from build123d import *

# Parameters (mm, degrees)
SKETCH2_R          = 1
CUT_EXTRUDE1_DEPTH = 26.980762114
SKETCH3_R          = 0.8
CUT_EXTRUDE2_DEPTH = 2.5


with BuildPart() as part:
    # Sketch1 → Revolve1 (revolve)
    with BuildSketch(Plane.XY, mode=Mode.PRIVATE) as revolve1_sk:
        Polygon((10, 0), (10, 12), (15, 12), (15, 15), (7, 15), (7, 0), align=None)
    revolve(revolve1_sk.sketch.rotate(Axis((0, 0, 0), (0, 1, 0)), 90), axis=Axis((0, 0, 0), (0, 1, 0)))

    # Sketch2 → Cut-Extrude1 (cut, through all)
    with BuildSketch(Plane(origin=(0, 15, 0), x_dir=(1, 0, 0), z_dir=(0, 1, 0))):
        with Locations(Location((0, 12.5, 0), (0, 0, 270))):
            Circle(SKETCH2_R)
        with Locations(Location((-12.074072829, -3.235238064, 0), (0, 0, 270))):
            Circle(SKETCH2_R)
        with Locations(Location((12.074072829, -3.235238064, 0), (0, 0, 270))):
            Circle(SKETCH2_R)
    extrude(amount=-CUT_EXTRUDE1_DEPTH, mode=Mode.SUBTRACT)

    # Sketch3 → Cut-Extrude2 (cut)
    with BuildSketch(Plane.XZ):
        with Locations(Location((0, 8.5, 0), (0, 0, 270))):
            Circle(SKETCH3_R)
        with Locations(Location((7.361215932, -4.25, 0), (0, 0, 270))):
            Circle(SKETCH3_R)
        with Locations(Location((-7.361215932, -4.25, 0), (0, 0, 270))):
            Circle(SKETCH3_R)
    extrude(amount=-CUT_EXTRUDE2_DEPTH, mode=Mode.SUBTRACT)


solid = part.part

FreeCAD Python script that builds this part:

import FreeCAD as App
import Part
import Sketcher


def add_polygon(sketch, points):
    """Adds a closed chain of lines whose ends are joined by coincident constraints."""
    first, n = sketch.GeometryCount, len(points)
    for a, b in zip(points, points[1:] + points[:1]):
        sketch.addGeometry(Part.LineSegment(App.Vector(*a, 0), App.Vector(*b, 0)), False)
    for i in range(n):
        sketch.addConstraint(Sketcher.Constraint("Coincident", first + i, 2, first + (i + 1) % n, 1))

doc = App.newDocument("Part")
body = doc.addObject("PartDesign::Body", "Body")

sketch1 = body.newObject("Sketcher::SketchObject", "Sketch")
sketch1.AttachmentSupport = (doc.getObject("XY_Plane"), [""])
sketch1.MapMode = "FlatFace"
add_polygon(sketch1, [(10, 0), (10, 12), (15, 12), (15, 15), (7, 15), (7, 0)])
sketch1.addConstraint([
    Sketcher.Constraint("Vertical", 0),
    Sketcher.Constraint("Horizontal", 1),
    Sketcher.Constraint("Vertical", 2),
    Sketcher.Constraint("Horizontal", 3),
    Sketcher.Constraint("Vertical", 4),
    Sketcher.Constraint("Horizontal", 5),
    Sketcher.Constraint("PointOnObject", 4, 2, -1),
    Sketcher.Constraint("Equal", 5, 2),
    Sketcher.Constraint("DistanceX", 1, 1, 1, 2, 5.0),
    Sketcher.Constraint("DistanceX", 3, 2, 3, 1, 8.0),
    Sketcher.Constraint("DistanceY", 0, 1, 0, 2, 12.0),
    Sketcher.Constraint("DistanceX", -1, 1, 0, 2, 10.0),
])
revolution = body.newObject("PartDesign::Revolution", "Revolution")
revolution.Profile = sketch1
revolution.ReferenceAxis = (sketch1, ["V_Axis"])
revolution.Angle = 360

sketch2 = body.newObject("Sketcher::SketchObject", "Sketch001")
sketch2.AttachmentSupport = (doc.getObject("XZ_Plane"), [""])
sketch2.MapMode = "FlatFace"
sketch2.AttachmentOffset = App.Placement(App.Vector(0, 0, -15), App.Rotation())
sketch2.addGeometry([
    Part.Circle(App.Vector(0, -12.5, 0), App.Vector(0, 0, 1), 1),
    Part.Circle(App.Vector(-12.1, 3.2, 0), App.Vector(0, 0, 1), 1),
    Part.Circle(App.Vector(12.1, 3.2, 0), App.Vector(0, 0, 1), 1),
], False)
sketch2.addConstraint([
    Sketcher.Constraint("Equal", 0, 1),
    Sketcher.Constraint("Equal", 1, 2),
    Sketcher.Constraint("Symmetric", 1, 3, 2, 3, -2),
    Sketcher.Constraint("PointOnObject", 0, 3, -2),
    Sketcher.Constraint("Diameter", 0, 2.0),
    Sketcher.Constraint("DistanceY", 0, 3, -1, 1, 12.5),
    Sketcher.Constraint("DistanceY", -1, 1, 1, 3, 3.235238),
    Sketcher.Constraint("DistanceX", 1, 3, -1, 1, 12.074073),
])
pocket1 = body.newObject("PartDesign::Pocket", "Pocket")
pocket1.Profile = sketch2
pocket1.Type = "ThroughAll"
pocket1.Reversed = True

sketch3 = body.newObject("Sketcher::SketchObject", "Sketch002")
sketch3.AttachmentSupport = (doc.getObject("XZ_Plane"), [""])
sketch3.MapMode = "FlatFace"
sketch3.addGeometry([
    Part.Circle(App.Vector(0, 8.5, 0), App.Vector(0, 0, 1), 0.8),
    Part.Circle(App.Vector(7.4, -4.2, 0), App.Vector(0, 0, 1), 0.8),
    Part.Circle(App.Vector(-7.4, -4.2, 0), App.Vector(0, 0, 1), 0.8),
], False)
sketch3.addConstraint([
    Sketcher.Constraint("Equal", 0, 1),
    Sketcher.Constraint("Equal", 1, 2),
    Sketcher.Constraint("Symmetric", 1, 3, 2, 3, -2),
    Sketcher.Constraint("PointOnObject", 0, 3, -2),
    Sketcher.Constraint("Diameter", 0, 1.6),
    Sketcher.Constraint("DistanceY", -1, 1, 0, 3, 8.5),
    Sketcher.Constraint("DistanceY", 1, 3, -1, 1, 4.25),
    Sketcher.Constraint("DistanceX", 2, 3, 1, 3, 14.722432),
])
pocket2 = body.newObject("PartDesign::Pocket", "Pocket001")
pocket2.Profile = sketch3
pocket2.Length = 2.5

doc.recompute()
